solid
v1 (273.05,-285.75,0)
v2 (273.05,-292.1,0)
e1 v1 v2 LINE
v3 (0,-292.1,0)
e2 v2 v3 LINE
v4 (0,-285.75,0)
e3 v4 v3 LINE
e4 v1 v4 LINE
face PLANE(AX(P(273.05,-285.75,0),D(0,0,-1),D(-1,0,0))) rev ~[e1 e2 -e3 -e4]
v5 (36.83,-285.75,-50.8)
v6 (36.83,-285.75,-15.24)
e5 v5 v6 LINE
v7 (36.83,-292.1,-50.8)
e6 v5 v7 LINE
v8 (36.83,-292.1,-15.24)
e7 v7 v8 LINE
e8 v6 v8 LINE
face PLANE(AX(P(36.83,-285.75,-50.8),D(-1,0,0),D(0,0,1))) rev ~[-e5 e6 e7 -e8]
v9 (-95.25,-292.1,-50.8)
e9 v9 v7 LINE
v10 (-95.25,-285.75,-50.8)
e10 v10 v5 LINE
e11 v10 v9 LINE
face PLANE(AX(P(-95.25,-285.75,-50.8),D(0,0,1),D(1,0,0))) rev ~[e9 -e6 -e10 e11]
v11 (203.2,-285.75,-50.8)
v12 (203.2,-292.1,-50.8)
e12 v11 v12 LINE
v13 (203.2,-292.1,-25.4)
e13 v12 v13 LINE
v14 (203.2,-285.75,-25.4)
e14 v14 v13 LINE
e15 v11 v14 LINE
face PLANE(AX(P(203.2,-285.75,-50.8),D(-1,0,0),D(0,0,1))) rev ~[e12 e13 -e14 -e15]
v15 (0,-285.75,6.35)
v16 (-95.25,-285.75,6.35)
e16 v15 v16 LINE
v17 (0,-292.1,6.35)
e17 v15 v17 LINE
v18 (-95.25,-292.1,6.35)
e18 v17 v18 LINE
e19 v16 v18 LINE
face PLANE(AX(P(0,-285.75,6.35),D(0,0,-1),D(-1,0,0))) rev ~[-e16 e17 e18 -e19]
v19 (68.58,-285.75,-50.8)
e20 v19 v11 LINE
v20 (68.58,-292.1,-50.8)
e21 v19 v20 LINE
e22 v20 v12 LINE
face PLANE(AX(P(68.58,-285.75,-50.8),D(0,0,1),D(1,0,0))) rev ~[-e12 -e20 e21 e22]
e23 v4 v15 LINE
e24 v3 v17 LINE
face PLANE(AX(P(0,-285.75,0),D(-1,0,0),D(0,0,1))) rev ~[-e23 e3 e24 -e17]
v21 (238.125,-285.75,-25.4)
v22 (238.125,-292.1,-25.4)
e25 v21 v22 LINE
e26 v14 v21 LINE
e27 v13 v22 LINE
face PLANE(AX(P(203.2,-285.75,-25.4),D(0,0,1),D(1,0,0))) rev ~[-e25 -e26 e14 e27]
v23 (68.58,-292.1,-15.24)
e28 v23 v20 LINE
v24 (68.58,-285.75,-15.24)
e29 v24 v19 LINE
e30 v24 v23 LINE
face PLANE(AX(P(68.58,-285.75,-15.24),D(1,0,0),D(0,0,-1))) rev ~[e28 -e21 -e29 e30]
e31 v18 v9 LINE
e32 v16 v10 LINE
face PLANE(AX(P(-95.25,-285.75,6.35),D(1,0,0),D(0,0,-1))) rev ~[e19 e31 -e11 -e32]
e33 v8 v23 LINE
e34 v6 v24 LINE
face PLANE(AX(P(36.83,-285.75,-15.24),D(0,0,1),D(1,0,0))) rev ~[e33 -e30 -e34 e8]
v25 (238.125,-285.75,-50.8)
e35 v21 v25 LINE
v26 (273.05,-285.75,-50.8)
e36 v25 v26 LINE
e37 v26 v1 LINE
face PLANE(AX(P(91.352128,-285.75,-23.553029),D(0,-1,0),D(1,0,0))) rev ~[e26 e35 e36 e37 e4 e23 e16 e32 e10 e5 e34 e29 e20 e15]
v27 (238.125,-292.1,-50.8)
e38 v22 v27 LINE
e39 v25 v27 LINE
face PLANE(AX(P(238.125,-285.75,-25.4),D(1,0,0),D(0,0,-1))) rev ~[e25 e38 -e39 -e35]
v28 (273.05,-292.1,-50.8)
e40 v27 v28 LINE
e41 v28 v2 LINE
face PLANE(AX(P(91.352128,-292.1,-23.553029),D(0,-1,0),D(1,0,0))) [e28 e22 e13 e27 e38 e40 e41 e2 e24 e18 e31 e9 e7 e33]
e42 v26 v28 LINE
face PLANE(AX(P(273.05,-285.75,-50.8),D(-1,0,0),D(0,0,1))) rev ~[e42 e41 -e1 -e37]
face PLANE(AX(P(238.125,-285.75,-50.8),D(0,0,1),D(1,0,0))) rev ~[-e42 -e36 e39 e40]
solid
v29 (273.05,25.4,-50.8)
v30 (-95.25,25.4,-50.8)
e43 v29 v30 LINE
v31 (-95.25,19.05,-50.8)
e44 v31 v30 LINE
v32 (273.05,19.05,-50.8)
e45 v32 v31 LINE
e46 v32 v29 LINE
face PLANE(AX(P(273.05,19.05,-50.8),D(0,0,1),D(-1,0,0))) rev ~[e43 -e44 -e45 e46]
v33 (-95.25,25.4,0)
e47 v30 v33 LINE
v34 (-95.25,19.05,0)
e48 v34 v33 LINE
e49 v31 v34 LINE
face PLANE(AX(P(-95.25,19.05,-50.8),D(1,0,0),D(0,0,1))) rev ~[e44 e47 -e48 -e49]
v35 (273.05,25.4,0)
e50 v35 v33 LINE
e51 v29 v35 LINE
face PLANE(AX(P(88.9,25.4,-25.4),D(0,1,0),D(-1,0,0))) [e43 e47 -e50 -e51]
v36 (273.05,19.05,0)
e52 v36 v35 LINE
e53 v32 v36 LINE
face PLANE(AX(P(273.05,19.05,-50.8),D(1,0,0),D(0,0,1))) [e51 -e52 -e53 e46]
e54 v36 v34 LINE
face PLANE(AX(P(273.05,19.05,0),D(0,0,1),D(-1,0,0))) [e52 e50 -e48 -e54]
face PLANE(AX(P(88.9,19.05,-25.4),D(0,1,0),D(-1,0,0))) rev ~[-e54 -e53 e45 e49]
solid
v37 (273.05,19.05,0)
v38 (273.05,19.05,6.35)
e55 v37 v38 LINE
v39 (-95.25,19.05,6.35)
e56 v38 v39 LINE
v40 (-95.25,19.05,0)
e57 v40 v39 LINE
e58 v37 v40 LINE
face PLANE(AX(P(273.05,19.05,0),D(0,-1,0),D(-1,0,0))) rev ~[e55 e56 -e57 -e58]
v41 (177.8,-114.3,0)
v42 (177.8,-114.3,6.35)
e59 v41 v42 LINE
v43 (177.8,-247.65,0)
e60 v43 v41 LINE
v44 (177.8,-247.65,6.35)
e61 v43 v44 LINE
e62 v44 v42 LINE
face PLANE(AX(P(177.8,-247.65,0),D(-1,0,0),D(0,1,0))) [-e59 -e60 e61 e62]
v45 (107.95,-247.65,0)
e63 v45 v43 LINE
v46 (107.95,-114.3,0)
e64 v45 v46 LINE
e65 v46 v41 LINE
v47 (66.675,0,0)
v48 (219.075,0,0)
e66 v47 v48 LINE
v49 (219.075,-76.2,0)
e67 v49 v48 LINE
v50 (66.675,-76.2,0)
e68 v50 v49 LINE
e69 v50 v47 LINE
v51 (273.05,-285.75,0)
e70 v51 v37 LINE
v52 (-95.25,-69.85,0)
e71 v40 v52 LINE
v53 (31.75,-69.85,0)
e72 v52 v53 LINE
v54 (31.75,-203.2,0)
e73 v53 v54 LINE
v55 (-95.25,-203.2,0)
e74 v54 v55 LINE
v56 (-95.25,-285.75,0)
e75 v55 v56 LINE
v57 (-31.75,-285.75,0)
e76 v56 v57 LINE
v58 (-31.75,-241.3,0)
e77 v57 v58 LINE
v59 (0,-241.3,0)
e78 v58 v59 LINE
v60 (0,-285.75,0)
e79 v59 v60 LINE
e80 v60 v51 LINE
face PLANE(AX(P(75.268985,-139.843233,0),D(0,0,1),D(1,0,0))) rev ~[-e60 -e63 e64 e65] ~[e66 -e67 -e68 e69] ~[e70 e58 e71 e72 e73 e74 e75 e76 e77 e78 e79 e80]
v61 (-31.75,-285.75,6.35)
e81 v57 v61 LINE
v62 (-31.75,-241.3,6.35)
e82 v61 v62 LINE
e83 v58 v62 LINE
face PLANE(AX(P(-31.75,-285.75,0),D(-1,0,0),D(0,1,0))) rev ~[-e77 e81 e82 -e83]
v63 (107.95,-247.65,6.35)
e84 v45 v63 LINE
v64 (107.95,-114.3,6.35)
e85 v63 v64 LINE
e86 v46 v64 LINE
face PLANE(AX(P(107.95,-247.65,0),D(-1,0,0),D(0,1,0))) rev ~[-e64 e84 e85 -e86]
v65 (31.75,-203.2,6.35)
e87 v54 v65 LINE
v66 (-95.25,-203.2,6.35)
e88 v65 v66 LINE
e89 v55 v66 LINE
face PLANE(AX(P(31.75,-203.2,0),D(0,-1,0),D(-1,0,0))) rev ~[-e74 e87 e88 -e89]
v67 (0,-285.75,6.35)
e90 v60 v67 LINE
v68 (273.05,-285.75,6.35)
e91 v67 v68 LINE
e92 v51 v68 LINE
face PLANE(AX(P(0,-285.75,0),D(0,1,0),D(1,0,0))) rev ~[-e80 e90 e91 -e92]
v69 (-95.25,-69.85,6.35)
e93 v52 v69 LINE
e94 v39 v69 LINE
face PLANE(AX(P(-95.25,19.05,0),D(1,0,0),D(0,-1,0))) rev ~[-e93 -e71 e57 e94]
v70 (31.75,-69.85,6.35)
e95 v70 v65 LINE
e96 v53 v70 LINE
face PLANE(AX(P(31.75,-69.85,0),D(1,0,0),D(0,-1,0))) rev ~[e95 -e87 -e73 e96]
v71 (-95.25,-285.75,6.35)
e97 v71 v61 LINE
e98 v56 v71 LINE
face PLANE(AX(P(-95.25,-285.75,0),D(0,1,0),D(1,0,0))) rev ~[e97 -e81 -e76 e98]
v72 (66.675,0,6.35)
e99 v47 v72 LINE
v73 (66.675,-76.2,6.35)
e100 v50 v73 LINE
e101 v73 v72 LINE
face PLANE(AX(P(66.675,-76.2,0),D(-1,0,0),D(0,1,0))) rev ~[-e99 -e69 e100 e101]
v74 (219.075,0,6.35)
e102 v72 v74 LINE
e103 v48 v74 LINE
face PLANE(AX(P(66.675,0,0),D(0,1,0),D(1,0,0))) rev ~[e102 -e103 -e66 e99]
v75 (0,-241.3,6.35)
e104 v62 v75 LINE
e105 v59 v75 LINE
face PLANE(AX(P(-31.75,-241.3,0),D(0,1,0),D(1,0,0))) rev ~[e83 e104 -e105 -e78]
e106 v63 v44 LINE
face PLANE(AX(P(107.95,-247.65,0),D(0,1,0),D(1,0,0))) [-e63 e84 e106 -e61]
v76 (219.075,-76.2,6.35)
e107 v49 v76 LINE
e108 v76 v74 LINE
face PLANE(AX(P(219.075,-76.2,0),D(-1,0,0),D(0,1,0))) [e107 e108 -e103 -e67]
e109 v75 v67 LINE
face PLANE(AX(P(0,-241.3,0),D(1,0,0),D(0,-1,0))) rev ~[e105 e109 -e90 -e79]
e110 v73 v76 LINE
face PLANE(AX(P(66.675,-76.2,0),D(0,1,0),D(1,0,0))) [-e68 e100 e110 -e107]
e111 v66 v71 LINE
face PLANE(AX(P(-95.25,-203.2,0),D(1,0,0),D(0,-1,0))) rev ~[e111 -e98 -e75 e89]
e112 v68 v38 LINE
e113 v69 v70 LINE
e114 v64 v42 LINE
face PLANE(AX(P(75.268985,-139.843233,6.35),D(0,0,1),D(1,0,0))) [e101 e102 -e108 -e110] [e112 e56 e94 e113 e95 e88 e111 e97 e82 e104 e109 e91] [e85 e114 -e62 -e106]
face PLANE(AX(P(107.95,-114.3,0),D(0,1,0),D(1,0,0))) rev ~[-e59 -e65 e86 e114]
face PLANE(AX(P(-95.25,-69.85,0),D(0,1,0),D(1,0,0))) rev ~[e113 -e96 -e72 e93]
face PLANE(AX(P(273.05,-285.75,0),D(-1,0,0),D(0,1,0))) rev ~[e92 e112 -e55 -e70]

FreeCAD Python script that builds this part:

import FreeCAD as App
import Part
import Sketcher

V = App.Vector
Q = App.Units.Quantity


def add_polygon(sketch, points):
    """Adds a closed chain of lines whose ends are joined by coincident constraints."""
    first, n = sketch.GeometryCount, len(points)
    for a, b in zip(points, points[1:] + points[:1]):
        sketch.addGeometry(Part.LineSegment(App.Vector(*a, 0), App.Vector(*b, 0)), False)
    for i in range(n):
        sketch.addConstraint(Sketcher.Constraint("Coincident", first + i, 2, first + (i + 1) % n, 1))

doc = App.newDocument("Part")
body = doc.addObject("PartDesign::Body", "Body")

# Sketch on XY plane
sketch1 = body.newObject("Sketcher::SketchObject", "Sketch")
sketch1.AttachmentSupport = (doc.getObject("XY_Plane"), [""])
sketch1.MapMode = "FlatFace"
add_polygon(sketch1, [(273, 19), (-95, 19), (-95, -70), (32, -70), (32, -203), (-95, -203), (-95, -286), (-32, -286), (-32, -241), (0, -241), (0, -286), (273, -286)])  # lines 0-11
add_polygon(sketch1, [(178, -248), (108, -248), (108, -114), (178, -114)])  # lines 12-15
add_polygon(sketch1, [(219, -76), (67, -76), (67, 0), (219, 0)])  # lines 16-19
sketch1.addConstraint([
    Sketcher.Constraint("Horizontal", 0),
    Sketcher.Constraint("Vertical", 1),
    Sketcher.Constraint("Horizontal", 2),
    Sketcher.Constraint("Vertical", 3),
    Sketcher.Constraint("Horizontal", 4),
    Sketcher.Constraint("Vertical", 5),
    Sketcher.Constraint("Horizontal", 6),
    Sketcher.Constraint("Vertical", 7),
    Sketcher.Constraint("Horizontal", 8),
    Sketcher.Constraint("Vertical", 9),
    Sketcher.Constraint("Horizontal", 10),
    Sketcher.Constraint("Vertical", 11),
    Sketcher.Constraint("Horizontal", 12),
    Sketcher.Constraint("Vertical", 13),
    Sketcher.Constraint("Horizontal", 14),
    Sketcher.Constraint("Vertical", 15),
    Sketcher.Constraint("Horizontal", 16),
    Sketcher.Constraint("Vertical", 17),
    Sketcher.Constraint("Horizontal", 18),
    Sketcher.Constraint("Vertical", 19),
    Sketcher.Constraint("PointOnObject", 8, 2, -2),
    Sketcher.Constraint("PointOnObject", 17, 2, -1),
    Sketcher.Constraint("Horizontal", 6, 2, 9, 2),
    Sketcher.Constraint("Vertical", 1, 2, 4, 2),
    Sketcher.Constraint("Equal", 3, 13),
    Sketcher.Constraint("DistanceX", 2, 1, 2, 2, Q("5 in")),
    Sketcher.Constraint("DistanceX", 16, 2, 16, 1, Q("6 in")),
    Sketcher.Constraint("DistanceY", 11, 1, 11, 2, Q("12 in")),
    Sketcher.Constraint("DistanceY", 17, 1, 17, 2, Q("3 in")),
    Sketcher.Constraint("DistanceX", 0, 2, 0, 1, Q("14.5 in")),
    Sketcher.Constraint("DistanceX", 6, 1, 6, 2, Q("2.5 in")),
    Sketcher.Constraint("DistanceY", 1, 2, 1, 1, Q("3.5 in")),
    Sketcher.Constraint("DistanceY", 3, 2, -1, 1, Q("8 in")),
    Sketcher.Constraint("DistanceX", -1, 1, 14, 2, Q("7 in")),
    Sketcher.Constraint("DistanceX", 3, 2, 12, 2, Q("3 in")),
    Sketcher.Constraint("DistanceY", 8, 2, 13, 2, Q("5 in")),
    Sketcher.Constraint("DistanceX", 8, 1, 8, 2, Q("1.25 in")),
    Sketcher.Constraint("DistanceY", 3, 2, 3, 1, Q("5.25 in")),
    Sketcher.Constraint("DistanceY", 7, 1, 7, 2, Q("1.75 in")),
    Sketcher.Constraint("DistanceX", -1, 1, 16, 2, Q("2.625 in")),
])
pad1 = body.newObject("PartDesign::Pad", "Pad")
pad1.Profile = sketch1
pad1.Length = Q("0.25 in")
body2 = doc.addObject("PartDesign::Body", "Body001")

# Sketch on XZ plane
sketch2 = body2.newObject("Sketcher::SketchObject", "Sketch001")
sketch2.AttachmentSupport = (doc.getObject("XZ_Plane001"), [""])
sketch2.MapMode = "FlatFace"
sketch2.AttachmentOffset = App.Placement(V(0, 0, -0.75 * 25.4), App.Rotation())
add_polygon(sketch2, [(273, 0), (273, -51), (-95, -51), (-95, 0)])  # lines 0-3
sketch2.addConstraint([
    Sketcher.Constraint("Vertical", 0),
    Sketcher.Constraint("Horizontal", 1),
    Sketcher.Constraint("Vertical", 2),
    Sketcher.Constraint("Horizontal", 3),
    Sketcher.Constraint("PointOnObject", 2, 2, -1),
    Sketcher.Constraint("DistanceY", 0, 2, 0, 1, Q("2 in")),
    Sketcher.Constraint("DistanceX", 1, 2, 1, 1, Q("14.5 in")),
    Sketcher.Constraint("DistanceX", -1, 1, 0, 2, Q("10.75 in")),
])
pad2 = body2.newObject("PartDesign::Pad", "Pad001")
pad2.Profile = sketch2
pad2.Length = Q("0.25 in")
pad2.Reversed = True
body3 = doc.addObject("PartDesign::Body", "Body002")

# Sketch on XZ plane
sketch3 = body3.newObject("Sketcher::SketchObject", "Sketch002")
sketch3.AttachmentSupport = (doc.getObject("XZ_Plane002"), [""])
sketch3.MapMode = "FlatFace"
sketch3.AttachmentOffset = App.Placement(V(0, 0, 11.25 * 25.4), App.Rotation())
add_polygon(sketch3, [(0, 0), (0, 6), (-95, 6), (-95, -51), (37, -51), (37, -15), (69, -15), (69, -51), (203, -51), (203, -25), (238, -25), (238, -51), (273, -51), (273, 0)])  # lines 0-13
sketch3.addConstraint([
    Sketcher.Constraint("Vertical", 0),
    Sketcher.Constraint("Horizontal", 1),
    Sketcher.Constraint("Vertical", 2),
    Sketcher.Constraint("Horizontal", 3),
    Sketcher.Constraint("Vertical", 4),
    Sketcher.Constraint("Horizontal", 5),
    Sketcher.Constraint("Vertical", 6),
    Sketcher.Constraint("Horizontal", 7),
    Sketcher.Constraint("Vertical", 8),
    Sketcher.Constraint("Horizontal", 9),
    Sketcher.Constraint("Vertical", 10),
    Sketcher.Constraint("Horizontal", 11),
    Sketcher.Constraint("Vertical", 12),
    Sketcher.Constraint("Horizontal", 13),
    Sketcher.Constraint("Coincident", 13, 2, -1, 1),
    Sketcher.Constraint("Horizontal", 3, 2, 6, 2),
    Sketcher.Constraint("Horizontal", 7, 2, 10, 2),
    Sketcher.Constraint("Equal", 9, 11),
    Sketcher.Constraint("DistanceY", 8, 1, 8, 2, Q("1 in")),
    Sketcher.Constraint("DistanceY", 12, 1, 12, 2, Q("2 in")),
    Sketcher.Constraint("DistanceX", 3, 1, 3, 2, Q("5.2 in")),
    Sketcher.Constraint("DistanceX", 7, 1, 7, 2, Q("5.3 in")),
    Sketcher.Constraint("DistanceY", 4, 1, 4, 2, Q("1.4 in")),
    Sketcher.Constraint("DistanceX", -1, 1, 7, 2, Q("8 in")),
    Sketcher.Constraint("DistanceX", 1, 2, 1, 1, Q("3.75 in")),
    Sketcher.Constraint("DistanceX", 13, 2, 13, 1, Q("10.75 in")),
    Sketcher.Constraint("DistanceY", 0, 1, 0, 2, Q("0.25 in")),
])
pad3 = body3.newObject("PartDesign::Pad", "Pad002")
pad3.Profile = sketch3
pad3.Length = Q("0.25 in")

doc.recompute()
